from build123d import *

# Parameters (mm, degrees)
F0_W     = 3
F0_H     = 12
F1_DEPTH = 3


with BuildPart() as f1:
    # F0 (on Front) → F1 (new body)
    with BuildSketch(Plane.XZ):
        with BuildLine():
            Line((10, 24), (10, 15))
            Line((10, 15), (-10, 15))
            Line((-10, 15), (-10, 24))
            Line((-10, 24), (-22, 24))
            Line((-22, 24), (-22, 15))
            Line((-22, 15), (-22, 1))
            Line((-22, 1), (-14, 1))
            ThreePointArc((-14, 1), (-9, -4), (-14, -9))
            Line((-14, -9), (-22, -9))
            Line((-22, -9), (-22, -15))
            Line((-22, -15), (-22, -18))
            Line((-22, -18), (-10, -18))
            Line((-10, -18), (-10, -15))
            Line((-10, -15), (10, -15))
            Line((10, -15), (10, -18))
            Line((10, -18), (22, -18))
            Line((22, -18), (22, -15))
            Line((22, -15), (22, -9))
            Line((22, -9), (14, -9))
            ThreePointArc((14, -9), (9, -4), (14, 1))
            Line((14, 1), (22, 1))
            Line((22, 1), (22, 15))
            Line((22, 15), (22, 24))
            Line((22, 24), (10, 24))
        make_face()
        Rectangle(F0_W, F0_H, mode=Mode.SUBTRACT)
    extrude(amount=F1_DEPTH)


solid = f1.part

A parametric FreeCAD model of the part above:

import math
import FreeCAD as App
import Part
import Sketcher


def add_polygon(sketch, points):
    """Adds a closed chain of lines whose ends are joined by coincident constraints."""
    first, n = sketch.GeometryCount, len(points)
    for a, b in zip(points, points[1:] + points[:1]):
        sketch.addGeometry(Part.LineSegment(App.Vector(*a, 0), App.Vector(*b, 0)), False)
    for i in range(n):
        sketch.addConstraint(Sketcher.Constraint("Coincident", first + i, 2, first + (i + 1) % n, 1))

doc = App.newDocument("Part")
body = doc.addObject("PartDesign::Body", "Body")

sketch1 = body.newObject("Sketcher::SketchObject", "Sketch")
sketch1.AttachmentSupport = (doc.getObject("XZ_Plane"), [""])
sketch1.MapMode = "FlatFace"
sketch1.addGeometry(Part.LineSegment(App.Vector(10, 24, 0), App.Vector(10, 15, 0)), False)
sketch1.addGeometry(Part.LineSegment(App.Vector(10, 15, 0), App.Vector(-10, 15, 0)), False)
sketch1.addGeometry(Part.LineSegment(App.Vector(-10, 15, 0), App.Vector(-10, 24, 0)), False)
sketch1.addGeometry(Part.LineSegment(App.Vector(-10, 24, 0), App.Vector(-22, 24, 0)), False)
sketch1.addGeometry(Part.LineSegment(App.Vector(-22, 24, 0), App.Vector(-22, 1, 0)), False)
sketch1.addGeometry(Part.LineSegment(App.Vector(-22, 1, 0), App.Vector(-14, 1, 0)), False)
sketch1.addGeometry(Part.ArcOfCircle(Part.Circle(App.Vector(-14, -4, 0), App.Vector(0, 0, 1), 5), math.radians(-90), math.radians(90)), False)
sketch1.addGeometry(Part.LineSegment(App.Vector(-14, -9, 0), App.Vector(-22, -9, 0)), False)
sketch1.addGeometry(Part.LineSegment(App.Vector(-22, -9, 0), App.Vector(-22, -18, 0)), False)
sketch1.addGeometry(Part.LineSegment(App.Vector(-22, -18, 0), App.Vector(-10, -18, 0)), False)
sketch1.addGeometry(Part.LineSegment(App.Vector(-10, -18, 0), App.Vector(-10, -15, 0)), False)
sketch1.addGeometry(Part.LineSegment(App.Vector(-10, -15, 0), App.Vector(10, -15, 0)), False)
sketch1.addGeometry(Part.LineSegment(App.Vector(10, -15, 0), App.Vector(10, -18, 0)), False)
sketch1.addGeometry(Part.LineSegment(App.Vector(10, -18, 0), App.Vector(22, -18, 0)), False)
sketch1.addGeometry(Part.LineSegment(App.Vector(22, -18, 0), App.Vector(22, -9, 0)), False)
sketch1.addGeometry(Part.LineSegment(App.Vector(22, -9, 0), App.Vector(14, -9, 0)), False)
sketch1.addGeometry(Part.ArcOfCircle(Part.Circle(App.Vector(14, -4, 0), App.Vector(0, 0, 1), 5), math.radians(90), math.radians(270)), False)
sketch1.addGeometry(Part.LineSegment(App.Vector(14, 1, 0), App.Vector(22, 1, 0)), False)
sketch1.addGeometry(Part.LineSegment(App.Vector(22, 1, 0), App.Vector(22, 24, 0)), False)
sketch1.addGeometry(Part.LineSegment(App.Vector(22, 24, 0), App.Vector(10, 24, 0)), False)
add_polygon(sketch1, [(1.5, -6), (-1.5, -6), (-1.5, 6), (1.5, 6)])
sketch1.addConstraint(Sketcher.Constraint("Coincident", 0, 2, 1, 1))
sketch1.addConstraint(Sketcher.Constraint("Coincident", 1, 2, 2, 1))
sketch1.addConstraint(Sketcher.Constraint("Coincident", 2, 2, 3, 1))
sketch1.addConstraint(Sketcher.Constraint("Coincident", 3, 2, 4, 1))
sketch1.addConstraint(Sketcher.Constraint("Coincident", 4, 2, 5, 1))
sketch1.addConstraint(Sketcher.Constraint("Tangent", 5, 2, 6, 2))
sketch1.addConstraint(Sketcher.Constraint("Tangent", 6, 1, 7, 1))
sketch1.addConstraint(Sketcher.Constraint("Coincident", 7, 2, 8, 1))
sketch1.addConstraint(Sketcher.Constraint("Coincident", 8, 2, 9, 1))
sketch1.addConstraint(Sketcher.Constraint("Coincident", 9, 2, 10, 1))
sketch1.addConstraint(Sketcher.Constraint("Coincident", 10, 2, 11, 1))
sketch1.addConstraint(Sketcher.Constraint("Coincident", 11, 2, 12, 1))
sketch1.addConstraint(Sketcher.Constraint("Coincident", 12, 2, 13, 1))
sketch1.addConstraint(Sketcher.Constraint("Coincident", 13, 2, 14, 1))
sketch1.addConstraint(Sketcher.Constraint("Coincident", 14, 2, 15, 1))
sketch1.addConstraint(Sketcher.Constraint("Tangent", 15, 2, 16, 2))
sketch1.addConstraint(Sketcher.Constraint("Tangent", 16, 1, 17, 1))
sketch1.addConstraint(Sketcher.Constraint("Coincident", 17, 2, 18, 1))
sketch1.addConstraint(Sketcher.Constraint("Coincident", 18, 2, 19, 1))
sketch1.addConstraint(Sketcher.Constraint("Coincident", 19, 2, 0, 1))
sketch1.addConstraint(Sketcher.Constraint("Vertical", 0))
sketch1.addConstraint(Sketcher.Constraint("Horizontal", 1))
sketch1.addConstraint(Sketcher.Constraint("Vertical", 2))
sketch1.addConstraint(Sketcher.Constraint("Horizontal", 3))
sketch1.addConstraint(Sketcher.Constraint("Vertical", 4))
sketch1.addConstraint(Sketcher.Constraint("Horizontal", 5))
sketch1.addConstraint(Sketcher.Constraint("Horizontal", 7))
sketch1.addConstraint(Sketcher.Constraint("Vertical", 8))
sketch1.addConstraint(Sketcher.Constraint("Horizontal", 9))
sketch1.addConstraint(Sketcher.Constraint("Vertical", 10))
sketch1.addConstraint(Sketcher.Constraint("Horizontal", 11))
sketch1.addConstraint(Sketcher.Constraint("Vertical", 12))
sketch1.addConstraint(Sketcher.Constraint("Horizontal", 13))
sketch1.addConstraint(Sketcher.Constraint("Vertical", 14))
sketch1.addConstraint(Sketcher.Constraint("Horizontal", 15))
sketch1.addConstraint(Sketcher.Constraint("Horizontal", 17))
sketch1.addConstraint(Sketcher.Constraint("Vertical", 18))
sketch1.addConstraint(Sketcher.Constraint("Horizontal", 19))
sketch1.addConstraint(Sketcher.Constraint("Horizontal", 20))
sketch1.addConstraint(Sketcher.Constraint("Vertical", 21))
sketch1.addConstraint(Sketcher.Constraint("Horizontal", 22))
sketch1.addConstraint(Sketcher.Constraint("Vertical", 23))
sketch1.addConstraint(Sketcher.Constraint("Equal", 6, 16))
sketch1.addConstraint(Sketcher.Constraint("Symmetric", 0, 2, 10, 2, -1, 1))
sketch1.addConstraint(Sketcher.Constraint("Symmetric", 20, 2, 22, 2, -1, 1))
sketch1.addConstraint(Sketcher.Constraint("Symmetric", 6, 3, 16, 3, -2))
sketch1.addConstraint(Sketcher.Constraint("Symmetric", 9, 2, 12, 2, -2))
sketch1.addConstraint(Sketcher.Constraint("Symmetric", 3, 2, 18, 2, -2))
sketch1.addConstraint(Sketcher.Constraint("Vertical", 4, 2, 7, 2))
sketch1.addConstraint(Sketcher.Constraint("Vertical", 2, 2, 9, 2))
sketch1.addConstraint(Sketcher.Constraint("Vertical", 14, 2, 17, 2))
sketch1.addConstraint(Sketcher.Constraint("Equal", 2, 8))
sketch1.addConstraint(Sketcher.Constraint("Equal", 22, 10))
sketch1.addConstraint(Sketcher.Constraint("Equal", 19, 21))
sketch1.addConstraint(Sketcher.Constraint("Radius", 6, 5.0))
sketch1.addConstraint(Sketcher.Constraint("DistanceX", 1, 2, 1, 1, 20.0))
sketch1.addConstraint(Sketcher.Constraint("DistanceX", 3, 2, 3, 1, 12.0))
sketch1.addConstraint(Sketcher.Constraint("DistanceX", 5, 1, 5, 2, 8.0))
sketch1.addConstraint(Sketcher.Constraint("DistanceX", 20, 2, 20, 1, 3.0))
sketch1.addConstraint(Sketcher.Constraint("DistanceY", 0, 2, 0, 1, 9.0))
sketch1.addConstraint(Sketcher.Constraint("DistanceY", 4, 2, 4, 1, 23.0))
pad1 = body.newObject("PartDesign::Pad", "Pad")
pad1.Profile = sketch1
pad1.Length = 3

doc.recompute()
